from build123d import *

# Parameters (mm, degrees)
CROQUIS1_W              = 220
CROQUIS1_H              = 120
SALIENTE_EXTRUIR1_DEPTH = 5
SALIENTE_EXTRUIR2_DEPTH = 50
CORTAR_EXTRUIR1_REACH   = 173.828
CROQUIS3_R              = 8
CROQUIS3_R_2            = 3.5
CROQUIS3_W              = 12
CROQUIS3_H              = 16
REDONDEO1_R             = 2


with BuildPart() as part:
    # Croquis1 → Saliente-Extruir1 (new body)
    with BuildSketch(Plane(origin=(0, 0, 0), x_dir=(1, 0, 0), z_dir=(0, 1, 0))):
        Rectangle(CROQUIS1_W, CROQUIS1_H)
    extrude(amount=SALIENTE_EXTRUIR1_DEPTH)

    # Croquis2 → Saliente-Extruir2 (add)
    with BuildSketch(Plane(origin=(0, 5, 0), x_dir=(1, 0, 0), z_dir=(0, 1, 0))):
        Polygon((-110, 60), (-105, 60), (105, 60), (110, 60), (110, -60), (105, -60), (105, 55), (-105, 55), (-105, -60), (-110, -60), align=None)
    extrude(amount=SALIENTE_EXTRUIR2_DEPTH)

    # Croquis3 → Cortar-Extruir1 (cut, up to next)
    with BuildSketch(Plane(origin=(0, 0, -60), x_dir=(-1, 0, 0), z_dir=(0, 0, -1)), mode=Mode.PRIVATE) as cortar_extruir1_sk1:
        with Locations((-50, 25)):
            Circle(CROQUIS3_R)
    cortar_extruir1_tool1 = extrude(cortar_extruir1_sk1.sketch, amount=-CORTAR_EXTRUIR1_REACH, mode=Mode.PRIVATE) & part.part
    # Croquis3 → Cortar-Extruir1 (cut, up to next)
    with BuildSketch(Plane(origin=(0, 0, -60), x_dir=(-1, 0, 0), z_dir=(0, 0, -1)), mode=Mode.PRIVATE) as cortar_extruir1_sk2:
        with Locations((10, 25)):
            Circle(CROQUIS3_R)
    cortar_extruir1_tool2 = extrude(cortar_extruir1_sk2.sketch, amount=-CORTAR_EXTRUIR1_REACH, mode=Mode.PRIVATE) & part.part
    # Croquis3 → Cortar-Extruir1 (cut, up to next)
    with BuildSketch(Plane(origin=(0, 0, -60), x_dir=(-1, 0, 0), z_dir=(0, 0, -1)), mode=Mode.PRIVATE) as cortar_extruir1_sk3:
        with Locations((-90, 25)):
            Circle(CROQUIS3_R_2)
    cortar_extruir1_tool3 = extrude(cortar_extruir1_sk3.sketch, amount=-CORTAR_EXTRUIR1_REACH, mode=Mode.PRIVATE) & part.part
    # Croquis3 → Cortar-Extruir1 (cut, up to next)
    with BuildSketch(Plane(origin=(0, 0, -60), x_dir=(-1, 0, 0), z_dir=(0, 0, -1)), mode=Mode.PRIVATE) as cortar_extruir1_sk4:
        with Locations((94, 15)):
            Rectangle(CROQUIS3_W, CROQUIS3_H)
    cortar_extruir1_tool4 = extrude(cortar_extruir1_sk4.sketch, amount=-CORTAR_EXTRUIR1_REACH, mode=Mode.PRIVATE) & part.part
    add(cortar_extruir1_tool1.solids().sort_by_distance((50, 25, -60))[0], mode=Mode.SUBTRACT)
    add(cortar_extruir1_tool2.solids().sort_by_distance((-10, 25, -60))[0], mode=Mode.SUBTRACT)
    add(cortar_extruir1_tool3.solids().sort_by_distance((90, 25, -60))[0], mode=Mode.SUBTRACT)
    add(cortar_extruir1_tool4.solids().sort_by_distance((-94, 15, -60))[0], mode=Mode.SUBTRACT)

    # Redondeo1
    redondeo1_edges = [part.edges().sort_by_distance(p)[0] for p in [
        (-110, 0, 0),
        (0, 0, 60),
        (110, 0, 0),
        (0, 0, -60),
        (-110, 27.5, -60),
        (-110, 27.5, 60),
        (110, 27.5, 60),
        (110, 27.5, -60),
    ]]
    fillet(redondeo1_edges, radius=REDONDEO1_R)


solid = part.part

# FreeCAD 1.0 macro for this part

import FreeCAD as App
import Part
import Sketcher
Q = App.Units.Quantity


def edges_at(feature, points):
    """Names of the edges that pass closest to the given points."""
    edges = feature.Shape.Edges
    near = lambda p: min(range(len(edges)), key=lambda i: edges[i].distToShape(Part.Vertex(*p))[0])
    return sorted({f"Edge{near(p) + 1}" for p in points})


def add_polygon(sketch, points):
    """Adds a closed chain of lines whose ends are joined by coincident constraints."""
    first, n = sketch.GeometryCount, len(points)
    for a, b in zip(points, points[1:] + points[:1]):
        sketch.addGeometry(Part.LineSegment(App.Vector(*a, 0), App.Vector(*b, 0)), False)
    for i in range(n):
        sketch.addConstraint(Sketcher.Constraint("Coincident", first + i, 2, first + (i + 1) % n, 1))

doc = App.newDocument("Part")
params = doc.addObject("Spreadsheet::Sheet", "Params")
for row, (alias, value) in enumerate([
    ("sketch1_width", "220 mm"),
    ("sketch1_height", "120 mm"),
    ("pad1_length", "5 mm"),
    ("sketch2_width", "220 mm"),
    ("sketch2_width2", "5 mm"),
    ("sketch2_height", "120 mm"),
    ("sketch2_height2", "115 mm"),
    ("pad2_length", "50 mm"),
    ("sketch3_diameter", "16 mm"),
    ("sketch4_diameter", "16 mm"),
    ("sketch5_diameter", "7 mm"),
    ("sketch6_width", "12 mm"),
    ("sketch6_height", "16 mm"),
    ("fillet_radius", "2 mm"),
], start=1):
    params.set(f"A{row}", alias)
    params.set(f"B{row}", "=" + value)
    params.setAlias(f"B{row}", alias)

body = doc.addObject("PartDesign::Body", "Body")

# Sketch on XZ plane
sketch1 = body.newObject("Sketcher::SketchObject", "Sketch")
sketch1.AttachmentSupport = (doc.getObject("XZ_Plane"), [""])
sketch1.MapMode = "FlatFace"
add_polygon(sketch1, [(-110, -60), (-110, 60), (110, 60), (110, -60)])  # lines 0-3
sketch1.addConstraint(Sketcher.Constraint("Vertical", 0))
sketch1.addConstraint(Sketcher.Constraint("Horizontal", 1))
sketch1.addConstraint(Sketcher.Constraint("Vertical", 2))
sketch1.addConstraint(Sketcher.Constraint("Horizontal", 3))
sketch1.addConstraint(Sketcher.Constraint("Symmetric", 0, 2, 2, 2, -1, 1))
sketch1.addConstraint(Sketcher.Constraint("DistanceX", 1, 1, 1, 2, Q("220 mm")))
sketch1.addConstraint(Sketcher.Constraint("DistanceY", 0, 1, 0, 2, Q("120 mm")))
sketch1.setExpression("Constraints[9]", "Params.sketch1_width")
sketch1.setExpression("Constraints[10]", "Params.sketch1_height")
pad1 = body.newObject("PartDesign::Pad", "Pad")
pad1.Profile = sketch1
pad1.setExpression("Length", "Params.pad1_length")
pad1.Reversed = True

# Sketch on XZ plane
sketch2 = body.newObject("Sketcher::SketchObject", "Sketch001")
sketch2.AttachmentSupport = (doc.getObject("XZ_Plane"), [""])
sketch2.MapMode = "FlatFace"
sketch2.AttachmentOffset = App.Placement(App.Vector(0, 0, -5), App.Rotation())
add_polygon(sketch2, [(110, -60), (-110, -60), (-110, 60), (-105, 60), (-105, -55), (105, -55), (105, 60), (110, 60)])  # lines 0-7
sketch2.addConstraint(Sketcher.Constraint("Horizontal", 0))
sketch2.addConstraint(Sketcher.Constraint("Vertical", 1))
sketch2.addConstraint(Sketcher.Constraint("Horizontal", 2))
sketch2.addConstraint(Sketcher.Constraint("Vertical", 3))
sketch2.addConstraint(Sketcher.Constraint("Horizontal", 4))
sketch2.addConstraint(Sketcher.Constraint("Vertical", 5))
sketch2.addConstraint(Sketcher.Constraint("Horizontal", 6))
sketch2.addConstraint(Sketcher.Constraint("Vertical", 7))
sketch2.addConstraint(Sketcher.Constraint("Symmetric", 0, 2, 6, 2, -1, 1))
sketch2.addConstraint(Sketcher.Constraint("Symmetric", 2, 2, 5, 2, -2))
sketch2.addConstraint(Sketcher.Constraint("DistanceX", 0, 2, 0, 1, Q("220 mm")))
sketch2.addConstraint(Sketcher.Constraint("DistanceX", 2, 1, 2, 2, Q("5 mm")))
sketch2.addConstraint(Sketcher.Constraint("DistanceY", 1, 1, 1, 2, Q("120 mm")))
sketch2.addConstraint(Sketcher.Constraint("DistanceY", 3, 2, 3, 1, Q("115 mm")))
sketch2.setExpression("Constraints[18]", "Params.sketch2_width")
sketch2.setExpression("Constraints[19]", "Params.sketch2_width2")
sketch2.setExpression("Constraints[20]", "Params.sketch2_height")
sketch2.setExpression("Constraints[21]", "Params.sketch2_height2")
pad2 = body.newObject("PartDesign::Pad", "Pad001")
pad2.Profile = sketch2
pad2.setExpression("Length", "Params.pad2_length")
pad2.Reversed = True

# Sketch on XY plane
sketch3 = body.newObject("Sketcher::SketchObject", "Sketch002")
sketch3.AttachmentSupport = (doc.getObject("XY_Plane"), [""])
sketch3.MapMode = "FlatFace"
sketch3.AttachmentOffset = App.Placement(App.Vector(0, 0, -60), App.Rotation())
sketch3.addGeometry(Part.Circle(App.Vector(50, 25, 0), App.Vector(0, 0, 1), 8), False)
sketch3.addConstraint(Sketcher.Constraint("Diameter", 0, Q("16 mm")))
sketch3.addConstraint(Sketcher.Constraint("DistanceX", -1, 1, 0, 3, Q("50 mm")))
sketch3.addConstraint(Sketcher.Constraint("DistanceY", -1, 1, 0, 3, Q("25 mm")))
sketch3.setExpression("Constraints[0]", "Params.sketch3_diameter")
pocket1 = body.newObject("PartDesign::Pocket", "Pocket")
pocket1.Profile = sketch3
pocket1.Type = "UpToFirst"
pocket1.Reversed = True

# Sketch on XY plane
sketch4 = body.newObject("Sketcher::SketchObject", "Sketch003")
sketch4.AttachmentSupport = (doc.getObject("XY_Plane"), [""])
sketch4.MapMode = "FlatFace"
sketch4.AttachmentOffset = App.Placement(App.Vector(0, 0, -60), App.Rotation())
sketch4.addGeometry(Part.Circle(App.Vector(-10, 25, 0), App.Vector(0, 0, 1), 8), False)
sketch4.addConstraint(Sketcher.Constraint("Diameter", 0, Q("16 mm")))
sketch4.addConstraint(Sketcher.Constraint("DistanceX", 0, 3, -1, 1, Q("10 mm")))
sketch4.addConstraint(Sketcher.Constraint("DistanceY", -1, 1, 0, 3, Q("25 mm")))
sketch4.setExpression("Constraints[0]", "Params.sketch4_diameter")
pocket2 = body.newObject("PartDesign::Pocket", "Pocket001")
pocket2.Profile = sketch4
pocket2.Type = "UpToFirst"
pocket2.Reversed = True

# Sketch on XY plane
sketch5 = body.newObject("Sketcher::SketchObject", "Sketch004")
sketch5.AttachmentSupport = (doc.getObject("XY_Plane"), [""])
sketch5.MapMode = "FlatFace"
sketch5.AttachmentOffset = App.Placement(App.Vector(0, 0, -60), App.Rotation())
sketch5.addGeometry(Part.Circle(App.Vector(90, 25, 0), App.Vector(0, 0, 1), 3.5), False)
sketch5.addConstraint(Sketcher.Constraint("Diameter", 0, Q("7 mm")))
sketch5.addConstraint(Sketcher.Constraint("DistanceX", -1, 1, 0, 3, Q("90 mm")))
sketch5.addConstraint(Sketcher.Constraint("DistanceY", -1, 1, 0, 3, Q("25 mm")))
sketch5.setExpression("Constraints[0]", "Params.sketch5_diameter")
pocket3 = body.newObject("PartDesign::Pocket", "Pocket002")
pocket3.Profile = sketch5
pocket3.Type = "UpToFirst"
pocket3.Reversed = True

# Sketch on XY plane
sketch6 = body.newObject("Sketcher::SketchObject", "Sketch005")
sketch6.AttachmentSupport = (doc.getObject("XY_Plane"), [""])
sketch6.MapMode = "FlatFace"
sketch6.AttachmentOffset = App.Placement(App.Vector(0, 0, -60), App.Rotation())
add_polygon(sketch6, [(-88, 23), (-88, 7), (-100, 7), (-100, 23)])  # lines 0-3
sketch6.addConstraint(Sketcher.Constraint("Vertical", 0))
sketch6.addConstraint(Sketcher.Constraint("Horizontal", 1))
sketch6.addConstraint(Sketcher.Constraint("Vertical", 2))
sketch6.addConstraint(Sketcher.Constraint("Horizontal", 3))
sketch6.addConstraint(Sketcher.Constraint("DistanceX", 1, 2, 1, 1, Q("12 mm")))
sketch6.addConstraint(Sketcher.Constraint("DistanceY", 0, 2, 0, 1, Q("16 mm")))
sketch6.addConstraint(Sketcher.Constraint("DistanceX", 0, 2, -1, 1, Q("88 mm")))
sketch6.addConstraint(Sketcher.Constraint("DistanceY", -1, 1, 0, 2, Q("7 mm")))
sketch6.setExpression("Constraints[8]", "Params.sketch6_width")
sketch6.setExpression("Constraints[9]", "Params.sketch6_height")
pocket4 = body.newObject("PartDesign::Pocket", "Pocket003")
pocket4.Profile = sketch6
pocket4.Type = "UpToFirst"
pocket4.Reversed = True
doc.recompute()

fillet = body.newObject("PartDesign::Fillet", "Fillet")
fillet.Base = (pocket4, edges_at(pocket4, [
    (-110, 0, 0),
    (0, 0, 60),
    (110, 0, 0),
    (0, 0, -60),
    (-110, 27.5, -60),
    (-110, 27.5, 60),
    (110, 27.5, 60),
    (110, 27.5, -60),
]))
fillet.setExpression("Radius", "Params.fillet_radius")

doc.recompute()
